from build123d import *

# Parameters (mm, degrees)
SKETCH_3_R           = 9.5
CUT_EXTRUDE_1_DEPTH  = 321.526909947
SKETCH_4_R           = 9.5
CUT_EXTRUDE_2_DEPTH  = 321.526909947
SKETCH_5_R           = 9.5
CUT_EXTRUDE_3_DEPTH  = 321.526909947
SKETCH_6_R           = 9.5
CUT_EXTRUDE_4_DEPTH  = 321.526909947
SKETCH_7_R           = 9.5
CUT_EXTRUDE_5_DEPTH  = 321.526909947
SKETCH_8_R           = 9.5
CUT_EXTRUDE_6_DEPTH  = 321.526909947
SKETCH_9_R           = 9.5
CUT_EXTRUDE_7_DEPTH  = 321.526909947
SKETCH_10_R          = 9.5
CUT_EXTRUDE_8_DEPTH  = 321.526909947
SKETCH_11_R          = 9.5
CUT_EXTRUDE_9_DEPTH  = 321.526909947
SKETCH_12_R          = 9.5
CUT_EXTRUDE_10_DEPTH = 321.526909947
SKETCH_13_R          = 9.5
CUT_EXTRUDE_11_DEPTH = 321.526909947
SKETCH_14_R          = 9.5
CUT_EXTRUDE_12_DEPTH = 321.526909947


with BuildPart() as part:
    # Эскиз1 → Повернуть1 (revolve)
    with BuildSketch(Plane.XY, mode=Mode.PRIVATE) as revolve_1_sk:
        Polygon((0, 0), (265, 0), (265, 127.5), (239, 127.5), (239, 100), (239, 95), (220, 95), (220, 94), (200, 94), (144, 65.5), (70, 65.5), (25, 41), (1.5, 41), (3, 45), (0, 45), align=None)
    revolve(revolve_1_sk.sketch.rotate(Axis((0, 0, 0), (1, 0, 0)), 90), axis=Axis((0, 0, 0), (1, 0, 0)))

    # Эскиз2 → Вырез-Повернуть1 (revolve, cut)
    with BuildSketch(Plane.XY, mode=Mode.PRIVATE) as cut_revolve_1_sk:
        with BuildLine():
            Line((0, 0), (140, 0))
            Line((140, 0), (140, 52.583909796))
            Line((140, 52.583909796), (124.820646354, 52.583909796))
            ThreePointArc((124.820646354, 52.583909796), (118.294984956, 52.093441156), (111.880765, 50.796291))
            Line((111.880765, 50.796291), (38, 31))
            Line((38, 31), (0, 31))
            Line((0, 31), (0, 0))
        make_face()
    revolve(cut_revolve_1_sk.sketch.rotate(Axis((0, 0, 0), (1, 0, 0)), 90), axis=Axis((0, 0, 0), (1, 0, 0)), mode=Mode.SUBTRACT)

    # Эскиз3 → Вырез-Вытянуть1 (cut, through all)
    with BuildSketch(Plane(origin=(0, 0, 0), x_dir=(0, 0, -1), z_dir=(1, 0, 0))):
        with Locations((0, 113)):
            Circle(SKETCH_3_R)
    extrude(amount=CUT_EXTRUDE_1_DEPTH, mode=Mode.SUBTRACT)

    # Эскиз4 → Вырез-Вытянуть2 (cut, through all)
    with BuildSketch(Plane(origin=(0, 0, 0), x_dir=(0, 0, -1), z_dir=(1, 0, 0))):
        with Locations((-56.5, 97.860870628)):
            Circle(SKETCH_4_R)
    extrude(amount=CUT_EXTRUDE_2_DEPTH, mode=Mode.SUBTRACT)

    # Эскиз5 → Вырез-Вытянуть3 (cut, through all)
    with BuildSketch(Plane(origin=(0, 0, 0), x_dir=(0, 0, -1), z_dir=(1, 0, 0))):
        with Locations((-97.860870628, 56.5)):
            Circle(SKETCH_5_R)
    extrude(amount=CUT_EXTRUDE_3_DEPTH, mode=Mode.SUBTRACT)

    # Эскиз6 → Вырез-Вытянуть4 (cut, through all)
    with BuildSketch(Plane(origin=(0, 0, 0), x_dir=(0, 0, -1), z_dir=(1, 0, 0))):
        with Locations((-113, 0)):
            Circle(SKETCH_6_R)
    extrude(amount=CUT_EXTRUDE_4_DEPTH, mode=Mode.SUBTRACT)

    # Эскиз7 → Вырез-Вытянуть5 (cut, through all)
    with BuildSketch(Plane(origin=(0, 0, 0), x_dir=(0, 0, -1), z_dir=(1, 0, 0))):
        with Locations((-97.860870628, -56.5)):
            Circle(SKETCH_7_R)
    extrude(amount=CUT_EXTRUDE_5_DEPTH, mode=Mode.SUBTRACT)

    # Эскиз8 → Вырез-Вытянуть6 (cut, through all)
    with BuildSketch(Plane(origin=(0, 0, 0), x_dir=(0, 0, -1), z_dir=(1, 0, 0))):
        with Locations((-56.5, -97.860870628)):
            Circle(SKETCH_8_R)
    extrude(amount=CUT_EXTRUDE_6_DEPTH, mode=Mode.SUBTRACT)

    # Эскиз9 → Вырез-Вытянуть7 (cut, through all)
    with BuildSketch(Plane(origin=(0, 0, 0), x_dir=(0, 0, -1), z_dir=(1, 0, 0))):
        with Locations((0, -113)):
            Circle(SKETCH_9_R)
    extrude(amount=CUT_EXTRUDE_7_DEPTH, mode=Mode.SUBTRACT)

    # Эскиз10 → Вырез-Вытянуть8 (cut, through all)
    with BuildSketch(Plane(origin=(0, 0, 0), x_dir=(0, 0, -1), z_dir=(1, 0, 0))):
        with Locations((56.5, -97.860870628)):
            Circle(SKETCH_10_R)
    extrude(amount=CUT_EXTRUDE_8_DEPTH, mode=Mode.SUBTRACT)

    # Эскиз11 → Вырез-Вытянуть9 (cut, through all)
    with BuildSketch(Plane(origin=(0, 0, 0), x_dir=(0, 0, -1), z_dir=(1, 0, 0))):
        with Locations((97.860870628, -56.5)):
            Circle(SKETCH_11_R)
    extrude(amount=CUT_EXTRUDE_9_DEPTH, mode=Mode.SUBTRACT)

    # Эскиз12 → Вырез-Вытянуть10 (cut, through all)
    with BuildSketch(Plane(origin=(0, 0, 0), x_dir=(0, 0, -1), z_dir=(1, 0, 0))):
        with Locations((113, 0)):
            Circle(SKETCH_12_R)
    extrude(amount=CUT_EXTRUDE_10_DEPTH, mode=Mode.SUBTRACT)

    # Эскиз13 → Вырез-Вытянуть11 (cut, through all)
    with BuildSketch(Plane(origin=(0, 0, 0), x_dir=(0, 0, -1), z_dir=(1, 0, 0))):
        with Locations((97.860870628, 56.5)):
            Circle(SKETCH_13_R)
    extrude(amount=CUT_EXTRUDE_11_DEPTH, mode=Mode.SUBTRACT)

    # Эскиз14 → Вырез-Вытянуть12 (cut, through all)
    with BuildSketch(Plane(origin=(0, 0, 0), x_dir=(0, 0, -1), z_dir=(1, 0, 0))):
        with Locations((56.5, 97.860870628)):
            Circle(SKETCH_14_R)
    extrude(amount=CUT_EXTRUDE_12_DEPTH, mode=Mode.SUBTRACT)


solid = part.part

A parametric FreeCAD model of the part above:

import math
import FreeCAD as App
import Part
import Sketcher
from FreeCAD import Vector
Q = App.Units.Quantity

doc = App.newDocument("Part")
body = doc.addObject("PartDesign::Body", "Body")

sketch1 = body.newObject("Sketcher::SketchObject", "Sketch")
sketch1.AttachmentSupport = (doc.getObject("XY_Plane"), [""])
sketch1.MapMode = "FlatFace"
sketch1.addGeometry(Part.LineSegment(Vector(0, 0, 0), Vector(265, 0, 0)), False)
sketch1.addGeometry(Part.LineSegment(Vector(265, 0, 0), Vector(265, 127.5, 0)), False)
sketch1.addGeometry(Part.LineSegment(Vector(265, 127.5, 0), Vector(239, 127.5, 0)), False)
sketch1.addGeometry(Part.LineSegment(Vector(239, 127.5, 0), Vector(239, 95, 0)), False)
sketch1.addGeometry(Part.LineSegment(Vector(239, 95, 0), Vector(220, 95, 0)), False)
sketch1.addGeometry(Part.LineSegment(Vector(220, 95, 0), Vector(220, 94, 0)), False)
sketch1.addGeometry(Part.LineSegment(Vector(220, 94, 0), Vector(200, 94, 0)), False)
sketch1.addGeometry(Part.LineSegment(Vector(200, 94, 0), Vector(144, 65.5, 0)), False)
sketch1.addGeometry(Part.LineSegment(Vector(144, 65.5, 0), Vector(70, 65.5, 0)), False)
sketch1.addGeometry(Part.LineSegment(Vector(70, 65.5, 0), Vector(25, 41, 0)), False)
sketch1.addGeometry(Part.LineSegment(Vector(25, 41, 0), Vector(1.5, 41, 0)), False)
sketch1.addGeometry(Part.LineSegment(Vector(1.5, 41, 0), Vector(3, 45, 0)), False)
sketch1.addGeometry(Part.LineSegment(Vector(3, 45, 0), Vector(0, 45, 0)), False)
sketch1.addGeometry(Part.LineSegment(Vector(0, 45, 0), Vector(0, 0, 0)), False)
sketch1.addConstraint(Sketcher.Constraint("Coincident", 0, 2, 1, 1))
sketch1.addConstraint(Sketcher.Constraint("Coincident", 1, 2, 2, 1))
sketch1.addConstraint(Sketcher.Constraint("Coincident", 2, 2, 3, 1))
sketch1.addConstraint(Sketcher.Constraint("Coincident", 3, 2, 4, 1))
sketch1.addConstraint(Sketcher.Constraint("Coincident", 4, 2, 5, 1))
sketch1.addConstraint(Sketcher.Constraint("Coincident", 5, 2, 6, 1))
sketch1.addConstraint(Sketcher.Constraint("Coincident", 6, 2, 7, 1))
sketch1.addConstraint(Sketcher.Constraint("Coincident", 7, 2, 8, 1))
sketch1.addConstraint(Sketcher.Constraint("Coincident", 8, 2, 9, 1))
sketch1.addConstraint(Sketcher.Constraint("Coincident", 9, 2, 10, 1))
sketch1.addConstraint(Sketcher.Constraint("Coincident", 10, 2, 11, 1))
sketch1.addConstraint(Sketcher.Constraint("Coincident", 11, 2, 12, 1))
sketch1.addConstraint(Sketcher.Constraint("Coincident", 12, 2, 13, 1))
sketch1.addConstraint(Sketcher.Constraint("Coincident", 13, 2, 0, 1))
sketch1.addConstraint(Sketcher.Constraint("Horizontal", 0))
sketch1.addConstraint(Sketcher.Constraint("Vertical", 1))
sketch1.addConstraint(Sketcher.Constraint("Horizontal", 2))
sketch1.addConstraint(Sketcher.Constraint("Vertical", 3))
sketch1.addConstraint(Sketcher.Constraint("Horizontal", 4))
sketch1.addConstraint(Sketcher.Constraint("Vertical", 5))
sketch1.addConstraint(Sketcher.Constraint("Horizontal", 6))
sketch1.addConstraint(Sketcher.Constraint("Horizontal", 8))
sketch1.addConstraint(Sketcher.Constraint("Horizontal", 10))
sketch1.addConstraint(Sketcher.Constraint("Horizontal", 12))
sketch1.addConstraint(Sketcher.Constraint("Vertical", 13))
sketch1.addConstraint(Sketcher.Constraint("Coincident", 13, 2, -1, 1))
sketch1.addConstraint(Sketcher.Constraint("DistanceX", 0, 1, 0, 2, 265.0))
sketch1.addConstraint(Sketcher.Constraint("DistanceX", 2, 2, 2, 1, 26.0))
sketch1.addConstraint(Sketcher.Constraint("DistanceX", 4, 2, 4, 1, 19.0))
sketch1.addConstraint(Sketcher.Constraint("DistanceX", 6, 2, 6, 1, 20.0))
sketch1.addConstraint(Sketcher.Constraint("DistanceX", 8, 2, 8, 1, 74.0))
sketch1.addConstraint(Sketcher.Constraint("DistanceX", 12, 2, 12, 1, 3.0))
sketch1.addConstraint(Sketcher.Constraint("DistanceY", 5, 2, 5, 1, 1.0))
sketch1.addConstraint(Sketcher.Constraint("DistanceY", 13, 2, 13, 1, 45.0))
sketch1.addConstraint(Sketcher.Constraint("DistanceX", 10, 2, 10, 1, 23.5))
sketch1.addConstraint(Sketcher.Constraint("DistanceY", 1, 1, 1, 2, 127.5))
sketch1.addConstraint(Sketcher.Constraint("DistanceY", 3, 2, 3, 1, 32.5))
sketch1.addConstraint(Sketcher.Constraint("DistanceX", -1, 1, 7, 2, 144.0))
sketch1.addConstraint(Sketcher.Constraint("DistanceX", -1, 1, 9, 2, 25.0))
sketch1.addConstraint(Sketcher.Constraint("DistanceY", -1, 1, 9, 2, 41.0))
sketch1.addConstraint(Sketcher.Constraint("DistanceY", 7, 2, 2, 2, 62.0))
revolution = body.newObject("PartDesign::Revolution", "Revolution")
revolution.Profile = sketch1
revolution.ReferenceAxis = (sketch1, ["H_Axis"])
revolution.Angle = 360

sketch2 = body.newObject("Sketcher::SketchObject", "Sketch001")
sketch2.AttachmentSupport = (doc.getObject("XY_Plane"), [""])
sketch2.MapMode = "FlatFace"
sketch2.addGeometry(Part.LineSegment(Vector(0, 0, 0), Vector(140, 0, 0)), False)
sketch2.addGeometry(Part.LineSegment(Vector(140, 0, 0), Vector(140, 52.58391, 0)), False)
sketch2.addGeometry(Part.LineSegment(Vector(140, 52.58391, 0), Vector(124.820646, 52.58391, 0)), False)
sketch2.addGeometry(Part.ArcOfCircle(Part.Circle(Vector(125.49159, 0, 0), Vector(0, 0, 1), 52.58819), math.radians(90.731025), math.radians(105)), False)
sketch2.addGeometry(Part.LineSegment(Vector(111.880765, 50.796291, 0), Vector(38, 31, 0)), False)
sketch2.addGeometry(Part.LineSegment(Vector(38, 31, 0), Vector(0, 31, 0)), False)
sketch2.addGeometry(Part.LineSegment(Vector(0, 31, 0), Vector(0, 0, 0)), False)
sketch2.addConstraint(Sketcher.Constraint("Coincident", 0, 2, 1, 1))
sketch2.addConstraint(Sketcher.Constraint("Coincident", 1, 2, 2, 1))
sketch2.addConstraint(Sketcher.Constraint("Coincident", 2, 2, 3, 1))
sketch2.addConstraint(Sketcher.Constraint("Tangent", 3, 2, 4, 1))
sketch2.addConstraint(Sketcher.Constraint("Coincident", 4, 2, 5, 1))
sketch2.addConstraint(Sketcher.Constraint("Coincident", 5, 2, 6, 1))
sketch2.addConstraint(Sketcher.Constraint("Coincident", 6, 2, 0, 1))
sketch2.addConstraint(Sketcher.Constraint("Horizontal", 0))
sketch2.addConstraint(Sketcher.Constraint("Vertical", 1))
sketch2.addConstraint(Sketcher.Constraint("Horizontal", 2))
sketch2.addConstraint(Sketcher.Constraint("Horizontal", 5))
sketch2.addConstraint(Sketcher.Constraint("Vertical", 6))
sketch2.addConstraint(Sketcher.Constraint("Coincident", 6, 2, -1, 1))
sketch2.addConstraint(Sketcher.Constraint("PointOnObject", 3, 3, -1))
sketch2.addConstraint(Sketcher.Constraint("DistanceX", 0, 1, 0, 2, 140.0))
sketch2.addConstraint(Sketcher.Constraint("DistanceX", 5, 2, 5, 1, 38.0))
sketch2.addConstraint(Sketcher.Constraint("DistanceY", 6, 2, 6, 1, 31.0))
sketch2.addConstraint(Sketcher.Constraint("Angle", 4, Q("-165 deg")))
sketch2.addConstraint(Sketcher.Constraint("Radius", 3, 52.58819))
sketch2.addConstraint(Sketcher.Constraint("DistanceY", 1, 1, 1, 2, 52.58391))
groove = body.newObject("PartDesign::Groove", "Groove")
groove.Profile = sketch2
groove.ReferenceAxis = (sketch2, ["H_Axis"])
groove.Angle = 360

sketch3 = body.newObject("Sketcher::SketchObject", "Sketch002")
sketch3.AttachmentSupport = (doc.getObject("YZ_Plane"), [""])
sketch3.MapMode = "FlatFace"
sketch3.addGeometry(Part.Circle(Vector(113, 0, 0), Vector(0, 0, 1), 9.5), False)
sketch3.addConstraint(Sketcher.Constraint("PointOnObject", 0, 3, -1))
sketch3.addConstraint(Sketcher.Constraint("Diameter", 0, 19.0))
sketch3.addConstraint(Sketcher.Constraint("DistanceX", -1, 1, 0, 3, 113.0))
pocket1 = body.newObject("PartDesign::Pocket", "Pocket")
pocket1.Profile = sketch3
pocket1.Type = "ThroughAll"
pocket1.Reversed = True

sketch4 = body.newObject("Sketcher::SketchObject", "Sketch003")
sketch4.AttachmentSupport = (doc.getObject("YZ_Plane"), [""])
sketch4.MapMode = "FlatFace"
sketch4.addGeometry(Part.Circle(Vector(97.860871, 56.5, 0), Vector(0, 0, 1), 9.5), False)
sketch4.addConstraint(Sketcher.Constraint("Diameter", 0, 19.0))
sketch4.addConstraint(Sketcher.Constraint("DistanceY", -1, 1, 0, 3, 56.5))
sketch4.addConstraint(Sketcher.Constraint("DistanceX", -1, 1, 0, 3, 97.860871))
pocket2 = body.newObject("PartDesign::Pocket", "Pocket001")
pocket2.Profile = sketch4
pocket2.Type = "ThroughAll"
pocket2.Reversed = True

sketch5 = body.newObject("Sketcher::SketchObject", "Sketch004")
sketch5.AttachmentSupport = (doc.getObject("YZ_Plane"), [""])
sketch5.MapMode = "FlatFace"
sketch5.addGeometry(Part.Circle(Vector(56.5, 97.860871, 0), Vector(0, 0, 1), 9.5), False)
sketch5.addConstraint(Sketcher.Constraint("Diameter", 0, 19.0))
sketch5.addConstraint(Sketcher.Constraint("DistanceX", -1, 1, 0, 3, 56.5))
sketch5.addConstraint(Sketcher.Constraint("DistanceY", -1, 1, 0, 3, 97.860871))
pocket3 = body.newObject("PartDesign::Pocket", "Pocket002")
pocket3.Profile = sketch5
pocket3.Type = "ThroughAll"
pocket3.Reversed = True

sketch6 = body.newObject("Sketcher::SketchObject", "Sketch005")
sketch6.AttachmentSupport = (doc.getObject("YZ_Plane"), [""])
sketch6.MapMode = "FlatFace"
sketch6.addGeometry(Part.Circle(Vector(0, 113, 0), Vector(0, 0, 1), 9.5), False)
sketch6.addConstraint(Sketcher.Constraint("PointOnObject", 0, 3, -2))
sketch6.addConstraint(Sketcher.Constraint("Diameter", 0, 19.0))
sketch6.addConstraint(Sketcher.Constraint("DistanceY", -1, 1, 0, 3, 113.0))
pocket4 = body.newObject("PartDesign::Pocket", "Pocket003")
pocket4.Profile = sketch6
pocket4.Type = "ThroughAll"
pocket4.Reversed = True

sketch7 = body.newObject("Sketcher::SketchObject", "Sketch006")
sketch7.AttachmentSupport = (doc.getObject("YZ_Plane"), [""])
sketch7.MapMode = "FlatFace"
sketch7.addGeometry(Part.Circle(Vector(-56.5, 97.860871, 0), Vector(0, 0, 1), 9.5), False)
sketch7.addConstraint(Sketcher.Constraint("Diameter", 0, 19.0))
sketch7.addConstraint(Sketcher.Constraint("DistanceX", 0, 3, -1, 1, 56.5))
sketch7.addConstraint(Sketcher.Constraint("DistanceY", -1, 1, 0, 3, 97.860871))
pocket5 = body.newObject("PartDesign::Pocket", "Pocket004")
pocket5.Profile = sketch7
pocket5.Type = "ThroughAll"
pocket5.Reversed = True

sketch8 = body.newObject("Sketcher::SketchObject", "Sketch007")
sketch8.AttachmentSupport = (doc.getObject("YZ_Plane"), [""])
sketch8.MapMode = "FlatFace"
sketch8.addGeometry(Part.Circle(Vector(-97.860871, 56.5, 0), Vector(0, 0, 1), 9.5), False)
sketch8.addConstraint(Sketcher.Constraint("Diameter", 0, 19.0))
sketch8.addConstraint(Sketcher.Constraint("DistanceY", -1, 1, 0, 3, 56.5))
sketch8.addConstraint(Sketcher.Constraint("DistanceX", 0, 3, -1, 1, 97.860871))
pocket6 = body.newObject("PartDesign::Pocket", "Pocket005")
pocket6.Profile = sketch8
pocket6.Type = "ThroughAll"
pocket6.Reversed = True

sketch9 = body.newObject("Sketcher::SketchObject", "Sketch008")
sketch9.AttachmentSupport = (doc.getObject("YZ_Plane"), [""])
sketch9.MapMode = "FlatFace"
sketch9.addGeometry(Part.Circle(Vector(-113, 0, 0), Vector(0, 0, 1), 9.5), False)
sketch9.addConstraint(Sketcher.Constraint("PointOnObject", 0, 3, -1))
sketch9.addConstraint(Sketcher.Constraint("Diameter", 0, 19.0))
sketch9.addConstraint(Sketcher.Constraint("DistanceX", 0, 3, -1, 1, 113.0))
pocket7 = body.newObject("PartDesign::Pocket", "Pocket006")
pocket7.Profile = sketch9
pocket7.Type = "ThroughAll"
pocket7.Reversed = True

sketch10 = body.newObject("Sketcher::SketchObject", "Sketch009")
sketch10.AttachmentSupport = (doc.getObject("YZ_Plane"), [""])
sketch10.MapMode = "FlatFace"
sketch10.addGeometry(Part.Circle(Vector(-97.860871, -56.5, 0), Vector(0, 0, 1), 9.5), False)
sketch10.addConstraint(Sketcher.Constraint("Diameter", 0, 19.0))
sketch10.addConstraint(Sketcher.Constraint("DistanceY", 0, 3, -1, 1, 56.5))
sketch10.addConstraint(Sketcher.Constraint("DistanceX", 0, 3, -1, 1, 97.860871))
pocket8 = body.newObject("PartDesign::Pocket", "Pocket007")
pocket8.Profile = sketch10
pocket8.Type = "ThroughAll"
pocket8.Reversed = True

sketch11 = body.newObject("Sketcher::SketchObject", "Sketch010")
sketch11.AttachmentSupport = (doc.getObject("YZ_Plane"), [""])
sketch11.MapMode = "FlatFace"
sketch11.addGeometry(Part.Circle(Vector(-56.5, -97.860871, 0), Vector(0, 0, 1), 9.5), False)
sketch11.addConstraint(Sketcher.Constraint("Diameter", 0, 19.0))
sketch11.addConstraint(Sketcher.Constraint("DistanceX", 0, 3, -1, 1, 56.5))
sketch11.addConstraint(Sketcher.Constraint("DistanceY", 0, 3, -1, 1, 97.860871))
pocket9 = body.newObject("PartDesign::Pocket", "Pocket008")
pocket9.Profile = sketch11
pocket9.Type = "ThroughAll"
pocket9.Reversed = True

sketch12 = body.newObject("Sketcher::SketchObject", "Sketch011")
sketch12.AttachmentSupport = (doc.getObject("YZ_Plane"), [""])
sketch12.MapMode = "FlatFace"
sketch12.addGeometry(Part.Circle(Vector(0, -113, 0), Vector(0, 0, 1), 9.5), False)
sketch12.addConstraint(Sketcher.Constraint("PointOnObject", 0, 3, -2))
sketch12.addConstraint(Sketcher.Constraint("Diameter", 0, 19.0))
sketch12.addConstraint(Sketcher.Constraint("DistanceY", 0, 3, -1, 1, 113.0))
pocket10 = body.newObject("PartDesign::Pocket", "Pocket009")
pocket10.Profile = sketch12
pocket10.Type = "ThroughAll"
pocket10.Reversed = True

sketch13 = body.newObject("Sketcher::SketchObject", "Sketch012")
sketch13.AttachmentSupport = (doc.getObject("YZ_Plane"), [""])
sketch13.MapMode = "FlatFace"
sketch13.addGeometry(Part.Circle(Vector(56.5, -97.860871, 0), Vector(0, 0, 1), 9.5), False)
sketch13.addConstraint(Sketcher.Constraint("Diameter", 0, 19.0))
sketch13.addConstraint(Sketcher.Constraint("DistanceX", -1, 1, 0, 3, 56.5))
sketch13.addConstraint(Sketcher.Constraint("DistanceY", 0, 3, -1, 1, 97.860871))
pocket11 = body.newObject("PartDesign::Pocket", "Pocket010")
pocket11.Profile = sketch13
pocket11.Type = "ThroughAll"
pocket11.Reversed = True

sketch14 = body.newObject("Sketcher::SketchObject", "Sketch013")
sketch14.AttachmentSupport = (doc.getObject("YZ_Plane"), [""])
sketch14.MapMode = "FlatFace"
sketch14.addGeometry(Part.Circle(Vector(97.860871, -56.5, 0), Vector(0, 0, 1), 9.5), False)
sketch14.addConstraint(Sketcher.Constraint("Diameter", 0, 19.0))
sketch14.addConstraint(Sketcher.Constraint("DistanceY", 0, 3, -1, 1, 56.5))
sketch14.addConstraint(Sketcher.Constraint("DistanceX", -1, 1, 0, 3, 97.860871))
pocket12 = body.newObject("PartDesign::Pocket", "Pocket011")
pocket12.Profile = sketch14
pocket12.Type = "ThroughAll"
pocket12.Reversed = True

doc.recompute()
